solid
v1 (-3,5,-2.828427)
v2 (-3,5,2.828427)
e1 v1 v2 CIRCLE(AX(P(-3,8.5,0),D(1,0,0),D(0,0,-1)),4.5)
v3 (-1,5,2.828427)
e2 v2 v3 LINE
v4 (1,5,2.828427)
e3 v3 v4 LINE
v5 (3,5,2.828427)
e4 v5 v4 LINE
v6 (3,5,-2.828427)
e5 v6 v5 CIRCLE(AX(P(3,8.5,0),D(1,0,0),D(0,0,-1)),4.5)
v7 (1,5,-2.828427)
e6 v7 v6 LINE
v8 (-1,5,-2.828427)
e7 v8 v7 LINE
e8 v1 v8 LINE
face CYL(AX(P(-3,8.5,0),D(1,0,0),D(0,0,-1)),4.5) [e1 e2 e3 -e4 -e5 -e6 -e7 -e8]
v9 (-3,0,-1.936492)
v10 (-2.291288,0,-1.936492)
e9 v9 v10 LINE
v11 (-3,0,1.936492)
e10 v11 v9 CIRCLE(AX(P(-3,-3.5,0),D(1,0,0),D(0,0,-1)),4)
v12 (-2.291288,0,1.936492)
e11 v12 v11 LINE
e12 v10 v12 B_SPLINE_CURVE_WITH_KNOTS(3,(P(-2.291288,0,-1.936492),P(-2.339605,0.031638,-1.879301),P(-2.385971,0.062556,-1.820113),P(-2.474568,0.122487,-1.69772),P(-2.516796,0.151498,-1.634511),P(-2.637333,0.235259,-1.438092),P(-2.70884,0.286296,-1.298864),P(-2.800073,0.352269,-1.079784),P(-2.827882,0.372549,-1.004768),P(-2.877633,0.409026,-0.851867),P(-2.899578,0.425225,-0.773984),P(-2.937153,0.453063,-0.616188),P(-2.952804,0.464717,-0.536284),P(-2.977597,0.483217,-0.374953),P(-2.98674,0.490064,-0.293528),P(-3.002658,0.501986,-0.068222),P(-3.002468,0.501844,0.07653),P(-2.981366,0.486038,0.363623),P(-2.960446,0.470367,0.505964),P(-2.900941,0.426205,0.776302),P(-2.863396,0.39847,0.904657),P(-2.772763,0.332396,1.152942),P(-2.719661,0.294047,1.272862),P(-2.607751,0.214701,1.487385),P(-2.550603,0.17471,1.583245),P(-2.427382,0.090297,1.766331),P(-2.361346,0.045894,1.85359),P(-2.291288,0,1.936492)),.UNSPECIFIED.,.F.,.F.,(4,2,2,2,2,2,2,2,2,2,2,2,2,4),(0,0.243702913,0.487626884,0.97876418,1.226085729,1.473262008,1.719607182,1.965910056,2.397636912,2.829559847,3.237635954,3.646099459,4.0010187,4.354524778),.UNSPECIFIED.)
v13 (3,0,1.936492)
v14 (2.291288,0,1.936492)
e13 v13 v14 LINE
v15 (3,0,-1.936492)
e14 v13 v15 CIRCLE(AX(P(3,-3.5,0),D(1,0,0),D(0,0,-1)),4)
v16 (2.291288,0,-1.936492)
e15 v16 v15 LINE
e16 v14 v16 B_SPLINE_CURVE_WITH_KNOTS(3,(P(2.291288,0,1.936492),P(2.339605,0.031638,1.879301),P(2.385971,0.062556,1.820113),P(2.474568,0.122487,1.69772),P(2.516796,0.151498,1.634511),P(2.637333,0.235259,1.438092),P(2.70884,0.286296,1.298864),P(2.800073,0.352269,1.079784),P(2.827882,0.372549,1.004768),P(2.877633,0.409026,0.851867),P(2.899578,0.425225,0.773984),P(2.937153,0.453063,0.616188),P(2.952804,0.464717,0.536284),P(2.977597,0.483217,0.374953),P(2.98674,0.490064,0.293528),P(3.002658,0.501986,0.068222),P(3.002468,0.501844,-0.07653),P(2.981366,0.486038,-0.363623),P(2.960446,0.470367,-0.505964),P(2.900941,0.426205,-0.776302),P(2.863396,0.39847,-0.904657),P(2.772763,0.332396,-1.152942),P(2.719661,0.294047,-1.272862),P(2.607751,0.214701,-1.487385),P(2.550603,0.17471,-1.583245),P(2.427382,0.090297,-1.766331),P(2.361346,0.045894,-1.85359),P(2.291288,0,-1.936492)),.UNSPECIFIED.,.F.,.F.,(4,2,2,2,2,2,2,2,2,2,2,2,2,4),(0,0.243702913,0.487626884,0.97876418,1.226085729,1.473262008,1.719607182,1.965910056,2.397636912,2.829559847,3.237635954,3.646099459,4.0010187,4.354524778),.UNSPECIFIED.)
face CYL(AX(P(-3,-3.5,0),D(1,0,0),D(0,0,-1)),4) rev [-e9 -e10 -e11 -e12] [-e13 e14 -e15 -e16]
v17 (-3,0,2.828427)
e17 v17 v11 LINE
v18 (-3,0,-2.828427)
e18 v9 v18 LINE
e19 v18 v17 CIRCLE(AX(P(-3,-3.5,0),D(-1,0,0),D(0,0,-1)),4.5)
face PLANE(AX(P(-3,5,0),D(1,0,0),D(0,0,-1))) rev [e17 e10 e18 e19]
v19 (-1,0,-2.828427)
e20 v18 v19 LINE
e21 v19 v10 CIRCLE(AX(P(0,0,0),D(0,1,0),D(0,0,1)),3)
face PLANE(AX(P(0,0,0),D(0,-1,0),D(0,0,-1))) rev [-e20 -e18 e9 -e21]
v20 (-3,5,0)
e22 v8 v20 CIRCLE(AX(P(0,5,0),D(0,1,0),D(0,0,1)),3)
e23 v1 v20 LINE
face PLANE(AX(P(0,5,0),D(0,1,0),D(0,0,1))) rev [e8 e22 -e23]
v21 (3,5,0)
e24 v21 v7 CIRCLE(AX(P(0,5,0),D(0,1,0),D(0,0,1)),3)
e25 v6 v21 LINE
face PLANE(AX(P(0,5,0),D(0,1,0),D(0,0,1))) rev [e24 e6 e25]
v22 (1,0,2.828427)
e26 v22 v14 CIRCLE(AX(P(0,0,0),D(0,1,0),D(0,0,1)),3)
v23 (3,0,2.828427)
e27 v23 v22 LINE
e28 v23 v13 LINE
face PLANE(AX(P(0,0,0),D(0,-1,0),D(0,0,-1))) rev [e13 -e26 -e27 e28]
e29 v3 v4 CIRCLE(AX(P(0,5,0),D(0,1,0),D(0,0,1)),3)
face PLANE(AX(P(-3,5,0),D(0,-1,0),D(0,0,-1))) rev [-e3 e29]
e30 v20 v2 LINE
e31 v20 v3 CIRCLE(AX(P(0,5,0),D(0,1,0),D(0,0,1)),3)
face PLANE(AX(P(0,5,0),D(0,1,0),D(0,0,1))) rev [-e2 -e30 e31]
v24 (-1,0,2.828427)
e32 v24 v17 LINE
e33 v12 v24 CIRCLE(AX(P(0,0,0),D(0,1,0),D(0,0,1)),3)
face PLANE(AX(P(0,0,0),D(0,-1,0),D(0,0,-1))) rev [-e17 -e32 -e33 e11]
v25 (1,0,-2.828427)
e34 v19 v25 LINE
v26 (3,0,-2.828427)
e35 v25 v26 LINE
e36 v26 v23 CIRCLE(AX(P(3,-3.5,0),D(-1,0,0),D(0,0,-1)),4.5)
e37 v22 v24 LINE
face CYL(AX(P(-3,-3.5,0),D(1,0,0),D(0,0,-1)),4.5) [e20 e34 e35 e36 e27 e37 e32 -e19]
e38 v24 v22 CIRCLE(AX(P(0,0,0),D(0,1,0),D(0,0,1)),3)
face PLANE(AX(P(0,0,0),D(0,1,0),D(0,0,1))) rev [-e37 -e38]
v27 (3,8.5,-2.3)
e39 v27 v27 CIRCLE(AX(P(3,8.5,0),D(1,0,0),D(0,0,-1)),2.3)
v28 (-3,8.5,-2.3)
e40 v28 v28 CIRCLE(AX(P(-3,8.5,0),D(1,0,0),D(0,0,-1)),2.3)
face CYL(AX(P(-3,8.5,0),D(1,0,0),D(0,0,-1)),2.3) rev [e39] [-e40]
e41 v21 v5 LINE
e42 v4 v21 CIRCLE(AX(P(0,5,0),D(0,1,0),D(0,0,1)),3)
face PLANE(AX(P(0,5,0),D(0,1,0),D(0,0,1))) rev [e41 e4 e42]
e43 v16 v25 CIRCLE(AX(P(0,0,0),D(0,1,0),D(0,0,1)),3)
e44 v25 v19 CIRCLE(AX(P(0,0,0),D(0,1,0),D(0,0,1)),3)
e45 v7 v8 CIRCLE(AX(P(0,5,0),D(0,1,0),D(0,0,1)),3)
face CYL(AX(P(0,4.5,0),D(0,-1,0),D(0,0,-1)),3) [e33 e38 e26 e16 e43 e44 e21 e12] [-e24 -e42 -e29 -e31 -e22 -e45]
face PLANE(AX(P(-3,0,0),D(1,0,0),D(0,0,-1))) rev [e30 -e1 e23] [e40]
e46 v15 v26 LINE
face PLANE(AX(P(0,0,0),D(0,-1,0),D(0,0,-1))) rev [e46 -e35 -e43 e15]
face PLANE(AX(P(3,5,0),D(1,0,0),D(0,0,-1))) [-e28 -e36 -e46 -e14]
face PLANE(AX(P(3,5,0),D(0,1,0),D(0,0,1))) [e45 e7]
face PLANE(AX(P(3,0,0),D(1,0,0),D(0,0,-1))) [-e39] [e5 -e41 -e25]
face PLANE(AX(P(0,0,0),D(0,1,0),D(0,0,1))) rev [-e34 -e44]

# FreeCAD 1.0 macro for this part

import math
import FreeCAD as App
import Part
import Sketcher
Q = App.Units.Quantity

doc = App.newDocument("Part")
body = doc.addObject("PartDesign::Body", "Body")

sketch1 = body.newObject("Sketcher::SketchObject", "Sketch")
sketch1.AttachmentSupport = (doc.getObject("XZ_Plane"), [""])
sketch1.MapMode = "FlatFace"
sketch1.addGeometry(Part.Circle(App.Vector(0, 0, 0), App.Vector(0, 0, 1), 3), False)
sketch1.addConstraint([
    Sketcher.Constraint("Coincident", 0, 3, -1, 1),
    Sketcher.Constraint("Diameter", 0, Q("6 mm")),
])
pad1 = body.newObject("PartDesign::Pad", "Pad")
pad1.Profile = sketch1
pad1.Length = 4.5
pad1.Reversed = True

sketch2 = body.newObject("Sketcher::SketchObject", "Sketch001")
sketch2.AttachmentSupport = (doc.getObject("YZ_Plane"), [""])
sketch2.MapMode = "FlatFace"
sketch2.addGeometry([
    Part.LineSegment(App.Vector(5, 3, 0), App.Vector(4.5, 3, 0)),
    Part.LineSegment(App.Vector(4.5, 3, 0), App.Vector(4.5, -3, 0)),
    Part.LineSegment(App.Vector(4.5, -3, 0), App.Vector(5, -3, 0)),
    Part.LineSegment(App.Vector(5, -3, 0), App.Vector(5, -2.828427, 0)),
    Part.ArcOfCircle(Part.Circle(App.Vector(8.5, 0, 0), App.Vector(0, 0, 1), 4.5), math.radians(-141.057559), math.radians(141.057559)),
    Part.LineSegment(App.Vector(5, 2.828427, 0), App.Vector(5, 3, 0)),
], False)
sketch2.addConstraint([
    Sketcher.Constraint("Coincident", 0, 2, 1, 1),
    Sketcher.Constraint("Coincident", 1, 2, 2, 1),
    Sketcher.Constraint("Coincident", 2, 2, 3, 1),
    Sketcher.Constraint("Coincident", 3, 2, 4, 1),
    Sketcher.Constraint("Coincident", 4, 2, 5, 1),
    Sketcher.Constraint("Coincident", 5, 2, 0, 1),
    Sketcher.Constraint("Horizontal", 0),
    Sketcher.Constraint("Vertical", 1),
    Sketcher.Constraint("Horizontal", 2),
    Sketcher.Constraint("Vertical", 3),
    Sketcher.Constraint("Vertical", 5),
    Sketcher.Constraint("Symmetric", 3, 2, 4, 2, -1),
    Sketcher.Constraint("Equal", 3, 5),
    Sketcher.Constraint("Radius", 4, Q("4.5 mm")),
    Sketcher.Constraint("DistanceY", 1, 2, 1, 1, Q("6 mm")),
    Sketcher.Constraint("DistanceX", 0, 2, 0, 1, Q("0.5 mm")),
    Sketcher.Constraint("DistanceX", -1, 1, 2, 2, Q("5 mm")),
    Sketcher.Constraint("DistanceX", 0, 2, 4, 3, Q("4 mm")),
])
pad2 = body.newObject("PartDesign::Pad", "Pad001")
pad2.Profile = sketch2
pad2.Length = 6
pad2.Midplane = True

sketch3 = body.newObject("Sketcher::SketchObject", "Sketch002")
sketch3.AttachmentSupport = (doc.getObject("YZ_Plane"), [""])
sketch3.MapMode = "FlatFace"
sketch3.AttachmentOffset = App.Placement(App.Vector(0, 0, 3), App.Rotation())
sketch3.addGeometry(Part.Circle(App.Vector(8.5, 0, 0), App.Vector(0, 0, 1), 2.3), False)
sketch3.addConstraint([
    Sketcher.Constraint("PointOnObject", 0, 3, -1),
    Sketcher.Constraint("Diameter", 0, Q("4.6 mm")),
    Sketcher.Constraint("DistanceX", -1, 1, 0, 3, Q("8.5 mm")),
])
pocket1 = body.newObject("PartDesign::Pocket", "Pocket")
pocket1.Profile = sketch3
pocket1.Type = "ThroughAll"

sketch4 = body.newObject("Sketcher::SketchObject", "Sketch003")
sketch4.AttachmentSupport = (doc.getObject("XZ_Plane"), [""])
sketch4.MapMode = "FlatFace"
sketch4.addGeometry([
    Part.LineSegment(App.Vector(-5.691, -7.191, 0), App.Vector(-5.691, 7.191, 0)),
    Part.LineSegment(App.Vector(-5.691, 7.191, 0), App.Vector(5.691, 7.191, 0)),
    Part.LineSegment(App.Vector(5.691, 7.191, 0), App.Vector(5.691, -7.191, 0)),
    Part.LineSegment(App.Vector(5.691, -7.191, 0), App.Vector(-5.691, -7.191, 0)),
    Part.Circle(App.Vector(0, 0, 0), App.Vector(0, 0, 1), 3),
], False)
sketch4.addConstraint([
    Sketcher.Constraint("Coincident", 0, 2, 1, 1),
    Sketcher.Constraint("Coincident", 1, 2, 2, 1),
    Sketcher.Constraint("Coincident", 2, 2, 3, 1),
    Sketcher.Constraint("Coincident", 3, 2, 0, 1),
    Sketcher.Constraint("Vertical", 0),
    Sketcher.Constraint("Horizontal", 1),
    Sketcher.Constraint("Vertical", 2),
    Sketcher.Constraint("Horizontal", 3),
    Sketcher.Constraint("Coincident", 4, 3, -1, 1),
    Sketcher.Constraint("Symmetric", 0, 2, 2, 2, -1, 1),
    Sketcher.Constraint("Diameter", 4, Q("6 mm")),
    Sketcher.Constraint("DistanceX", 1, 1, 1, 2, Q("11.382 mm")),
    Sketcher.Constraint("DistanceY", 0, 1, 0, 2, Q("14.382 mm")),
])
pocket2 = body.newObject("PartDesign::Pocket", "Pocket001")
pocket2.Profile = sketch4
pocket2.Length = 5
doc.recompute()

datumplane = body.newObject("PartDesign::Plane", "DatumPlane")
datumplane.AttachmentSupport = (doc.getObject("XZ_Plane"), [""])
datumplane.MapMode = "FlatFace"
datumplane.AttachmentOffset = App.Placement(App.Vector(0, 0, -2.5), App.Rotation())
mirrored = body.newObject("PartDesign::Mirrored", "Mirrored")
mirrored.Originals = [pad2, pocket2]
mirrored.MirrorPlane = (datumplane, [""])
body.Tip = mirrored

sketch5 = body.newObject("Sketcher::SketchObject", "Sketch004")
sketch5.AttachmentSupport = (doc.getObject("YZ_Plane"), [""])
sketch5.MapMode = "FlatFace"
sketch5.AttachmentOffset = App.Placement(App.Vector(0, 0, 3), App.Rotation())
sketch5.addGeometry(Part.Circle(App.Vector(-3.5, 0, 0), App.Vector(0, 0, 1), 4), False)
sketch5.addConstraint([
    Sketcher.Constraint("PointOnObject", 0, 3, -1),
    Sketcher.Constraint("Diameter", 0, Q("8 mm")),
    Sketcher.Constraint("DistanceX", 0, 3, -1, 1, Q("3.5 mm")),
])
pocket3 = body.newObject("PartDesign::Pocket", "Pocket002")
pocket3.Profile = sketch5
pocket3.Type = "ThroughAll"

doc.recompute()
